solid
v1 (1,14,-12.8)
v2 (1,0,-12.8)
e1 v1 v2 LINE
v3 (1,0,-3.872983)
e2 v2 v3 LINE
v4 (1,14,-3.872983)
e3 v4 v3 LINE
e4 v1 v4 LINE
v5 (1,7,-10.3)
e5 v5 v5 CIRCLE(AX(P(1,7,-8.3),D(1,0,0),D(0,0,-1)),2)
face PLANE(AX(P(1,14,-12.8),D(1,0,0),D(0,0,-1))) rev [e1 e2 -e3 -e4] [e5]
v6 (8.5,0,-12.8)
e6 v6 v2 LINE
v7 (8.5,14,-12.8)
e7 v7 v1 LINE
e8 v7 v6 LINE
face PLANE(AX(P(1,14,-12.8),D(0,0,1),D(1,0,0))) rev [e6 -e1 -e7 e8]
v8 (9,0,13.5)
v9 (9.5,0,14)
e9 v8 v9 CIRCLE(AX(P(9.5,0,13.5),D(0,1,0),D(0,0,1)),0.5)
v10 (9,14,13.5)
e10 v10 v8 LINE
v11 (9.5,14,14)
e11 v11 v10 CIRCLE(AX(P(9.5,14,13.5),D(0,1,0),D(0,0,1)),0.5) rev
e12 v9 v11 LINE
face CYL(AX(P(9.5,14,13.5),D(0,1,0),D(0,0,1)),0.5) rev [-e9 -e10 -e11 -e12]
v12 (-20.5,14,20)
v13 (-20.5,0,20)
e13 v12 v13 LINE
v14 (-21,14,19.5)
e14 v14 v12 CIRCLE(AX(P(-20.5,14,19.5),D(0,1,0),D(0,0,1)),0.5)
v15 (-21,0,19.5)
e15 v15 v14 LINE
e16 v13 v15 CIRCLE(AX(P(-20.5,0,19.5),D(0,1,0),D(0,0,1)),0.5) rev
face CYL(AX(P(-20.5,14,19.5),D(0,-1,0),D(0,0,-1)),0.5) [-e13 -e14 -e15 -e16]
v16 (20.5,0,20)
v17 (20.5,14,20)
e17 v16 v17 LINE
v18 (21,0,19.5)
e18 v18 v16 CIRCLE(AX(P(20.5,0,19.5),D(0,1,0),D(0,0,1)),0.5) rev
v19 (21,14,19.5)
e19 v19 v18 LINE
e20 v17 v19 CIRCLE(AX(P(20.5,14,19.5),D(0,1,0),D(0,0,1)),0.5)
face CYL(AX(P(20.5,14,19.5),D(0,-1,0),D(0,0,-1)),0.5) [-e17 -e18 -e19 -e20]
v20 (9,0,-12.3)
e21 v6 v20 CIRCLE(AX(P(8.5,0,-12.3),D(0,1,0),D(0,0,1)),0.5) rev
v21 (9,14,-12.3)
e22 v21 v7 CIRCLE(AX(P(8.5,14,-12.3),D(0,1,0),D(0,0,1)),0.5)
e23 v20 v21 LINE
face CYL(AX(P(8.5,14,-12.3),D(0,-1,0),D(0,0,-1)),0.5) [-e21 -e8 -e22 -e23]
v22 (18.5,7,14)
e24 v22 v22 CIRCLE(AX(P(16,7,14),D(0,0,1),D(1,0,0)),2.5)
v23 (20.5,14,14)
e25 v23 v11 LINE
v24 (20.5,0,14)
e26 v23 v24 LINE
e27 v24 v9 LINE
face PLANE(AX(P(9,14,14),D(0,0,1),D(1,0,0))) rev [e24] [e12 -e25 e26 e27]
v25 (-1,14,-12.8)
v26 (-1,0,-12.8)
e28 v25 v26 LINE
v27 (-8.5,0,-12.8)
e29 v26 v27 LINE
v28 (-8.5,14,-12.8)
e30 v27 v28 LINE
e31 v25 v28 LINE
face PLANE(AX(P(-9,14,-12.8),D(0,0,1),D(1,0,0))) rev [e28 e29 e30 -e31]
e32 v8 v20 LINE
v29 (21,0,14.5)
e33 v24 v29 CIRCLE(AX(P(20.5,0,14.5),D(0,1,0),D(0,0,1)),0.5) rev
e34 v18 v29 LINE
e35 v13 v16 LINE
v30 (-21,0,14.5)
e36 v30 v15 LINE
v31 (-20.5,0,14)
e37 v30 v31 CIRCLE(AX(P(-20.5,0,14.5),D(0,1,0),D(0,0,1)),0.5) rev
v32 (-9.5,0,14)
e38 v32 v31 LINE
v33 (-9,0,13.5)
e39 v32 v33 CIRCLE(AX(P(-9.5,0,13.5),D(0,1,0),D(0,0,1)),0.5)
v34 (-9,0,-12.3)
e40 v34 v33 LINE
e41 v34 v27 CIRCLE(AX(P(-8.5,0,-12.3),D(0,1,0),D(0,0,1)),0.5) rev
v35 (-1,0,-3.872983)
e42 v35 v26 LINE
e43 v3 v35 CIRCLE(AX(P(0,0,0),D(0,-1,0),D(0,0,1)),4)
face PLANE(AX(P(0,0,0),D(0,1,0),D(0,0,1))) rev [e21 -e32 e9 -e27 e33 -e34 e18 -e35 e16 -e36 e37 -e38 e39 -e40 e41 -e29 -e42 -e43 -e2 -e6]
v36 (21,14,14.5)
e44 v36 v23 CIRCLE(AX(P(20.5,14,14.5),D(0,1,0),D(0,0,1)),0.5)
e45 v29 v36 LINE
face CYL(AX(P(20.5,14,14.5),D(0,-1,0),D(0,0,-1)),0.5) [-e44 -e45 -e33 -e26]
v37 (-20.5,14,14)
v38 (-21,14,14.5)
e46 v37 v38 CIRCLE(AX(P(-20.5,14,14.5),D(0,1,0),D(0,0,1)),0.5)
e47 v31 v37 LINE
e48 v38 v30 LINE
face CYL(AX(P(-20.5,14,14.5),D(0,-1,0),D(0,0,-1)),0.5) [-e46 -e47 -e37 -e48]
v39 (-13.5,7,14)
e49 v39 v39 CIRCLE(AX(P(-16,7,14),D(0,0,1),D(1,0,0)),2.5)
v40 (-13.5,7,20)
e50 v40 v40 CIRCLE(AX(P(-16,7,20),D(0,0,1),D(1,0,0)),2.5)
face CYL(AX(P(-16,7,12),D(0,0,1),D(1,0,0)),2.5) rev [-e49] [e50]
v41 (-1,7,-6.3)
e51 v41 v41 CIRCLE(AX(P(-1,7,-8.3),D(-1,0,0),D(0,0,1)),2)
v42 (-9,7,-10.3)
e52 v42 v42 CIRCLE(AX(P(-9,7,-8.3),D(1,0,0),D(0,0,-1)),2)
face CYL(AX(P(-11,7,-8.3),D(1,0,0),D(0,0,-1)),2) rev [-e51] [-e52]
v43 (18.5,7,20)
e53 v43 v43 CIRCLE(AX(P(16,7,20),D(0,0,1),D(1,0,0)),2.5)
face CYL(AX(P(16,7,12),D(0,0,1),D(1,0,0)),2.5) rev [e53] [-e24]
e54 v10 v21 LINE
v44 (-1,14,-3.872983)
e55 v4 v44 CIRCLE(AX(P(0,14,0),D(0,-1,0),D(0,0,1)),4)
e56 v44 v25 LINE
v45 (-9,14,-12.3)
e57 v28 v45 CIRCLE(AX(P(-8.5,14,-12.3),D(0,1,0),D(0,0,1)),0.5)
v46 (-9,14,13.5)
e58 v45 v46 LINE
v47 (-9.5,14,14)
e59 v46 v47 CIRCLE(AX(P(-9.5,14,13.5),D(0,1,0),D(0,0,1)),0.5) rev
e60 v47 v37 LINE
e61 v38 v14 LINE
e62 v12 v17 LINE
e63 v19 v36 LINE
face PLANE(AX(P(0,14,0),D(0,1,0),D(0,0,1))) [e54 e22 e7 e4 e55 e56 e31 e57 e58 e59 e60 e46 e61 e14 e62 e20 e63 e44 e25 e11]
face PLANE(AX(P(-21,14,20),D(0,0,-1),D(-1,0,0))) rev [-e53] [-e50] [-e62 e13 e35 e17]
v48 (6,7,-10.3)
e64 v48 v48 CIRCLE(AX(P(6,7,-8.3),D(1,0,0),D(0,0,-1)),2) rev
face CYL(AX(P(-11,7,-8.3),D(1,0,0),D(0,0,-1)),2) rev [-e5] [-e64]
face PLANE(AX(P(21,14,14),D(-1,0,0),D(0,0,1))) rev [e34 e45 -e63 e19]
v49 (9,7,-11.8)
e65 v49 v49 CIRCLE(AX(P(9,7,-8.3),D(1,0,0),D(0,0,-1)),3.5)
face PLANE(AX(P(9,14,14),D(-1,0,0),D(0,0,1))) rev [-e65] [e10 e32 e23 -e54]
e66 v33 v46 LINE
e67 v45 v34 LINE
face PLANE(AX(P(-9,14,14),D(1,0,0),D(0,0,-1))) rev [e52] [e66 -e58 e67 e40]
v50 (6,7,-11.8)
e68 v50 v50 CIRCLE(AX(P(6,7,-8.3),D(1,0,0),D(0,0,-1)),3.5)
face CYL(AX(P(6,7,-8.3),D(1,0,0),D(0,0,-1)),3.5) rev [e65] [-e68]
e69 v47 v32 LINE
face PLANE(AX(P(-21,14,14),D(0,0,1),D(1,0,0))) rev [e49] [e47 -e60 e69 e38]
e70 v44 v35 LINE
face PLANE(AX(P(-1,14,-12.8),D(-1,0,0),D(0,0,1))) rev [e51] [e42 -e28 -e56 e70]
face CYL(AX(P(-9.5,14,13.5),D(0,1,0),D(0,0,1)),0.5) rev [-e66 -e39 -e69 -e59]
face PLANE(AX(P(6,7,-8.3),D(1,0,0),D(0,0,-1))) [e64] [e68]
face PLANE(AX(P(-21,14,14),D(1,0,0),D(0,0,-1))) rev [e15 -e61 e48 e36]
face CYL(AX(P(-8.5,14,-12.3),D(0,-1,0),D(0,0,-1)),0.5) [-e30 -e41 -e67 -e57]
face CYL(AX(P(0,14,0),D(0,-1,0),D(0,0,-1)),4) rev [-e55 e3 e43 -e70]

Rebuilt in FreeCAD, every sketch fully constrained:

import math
import FreeCAD as App
import Part
import Sketcher

V = App.Vector
Q = App.Units.Quantity


def edges_at(feature, points):
    """Names of the edges that pass closest to the given points."""
    edges = feature.Shape.Edges
    near = lambda p: min(range(len(edges)), key=lambda i: edges[i].distToShape(Part.Vertex(*p))[0])
    return sorted({f"Edge{near(p) + 1}" for p in points})

doc = App.newDocument("Part")
body = doc.addObject("PartDesign::Body", "Body")

# Sketch on XZ plane
sketch1 = body.newObject("Sketcher::SketchObject", "Sketch")
sketch1.AttachmentSupport = (doc.getObject("XZ_Plane"), [""])
sketch1.MapMode = "FlatFace"
sketch1.addGeometry([
    Part.LineSegment(V(21, 14, 0), V(9, 14, 0)),  # 0
    Part.LineSegment(V(9, 14, 0), V(9, -12.8, 0)),  # 1
    Part.LineSegment(V(9, -12.8, 0), V(1, -12.8, 0)),  # 2
    Part.LineSegment(V(1, -12.8, 0), V(1, -3.9, 0)),  # 3
    Part.ArcOfCircle(Part.Circle(V(0, 0, 0), V(0, 0, 1), 4), math.radians(-76), math.radians(256)),  # 4
    Part.LineSegment(V(-1, -3.9, 0), V(-1, -12.8, 0)),  # 5
    Part.LineSegment(V(-1, -12.8, 0), V(-9, -12.8, 0)),  # 6
    Part.LineSegment(V(-9, -12.8, 0), V(-9, 14, 0)),  # 7
    Part.LineSegment(V(-9, 14, 0), V(-21, 14, 0)),  # 8
    Part.LineSegment(V(-21, 14, 0), V(-21, 20, 0)),  # 9
    Part.LineSegment(V(-21, 20, 0), V(21, 20, 0)),  # 10
    Part.LineSegment(V(21, 20, 0), V(21, 14, 0)),  # 11
], False)
sketch1.addConstraint([
    Sketcher.Constraint("Coincident", 0, 2, 1, 1),
    Sketcher.Constraint("Coincident", 1, 2, 2, 1),
    Sketcher.Constraint("Coincident", 2, 2, 3, 1),
    Sketcher.Constraint("Coincident", 3, 2, 4, 1),
    Sketcher.Constraint("Coincident", 4, 2, 5, 1),
    Sketcher.Constraint("Coincident", 5, 2, 6, 1),
    Sketcher.Constraint("Coincident", 6, 2, 7, 1),
    Sketcher.Constraint("Coincident", 7, 2, 8, 1),
    Sketcher.Constraint("Coincident", 8, 2, 9, 1),
    Sketcher.Constraint("Coincident", 9, 2, 10, 1),
    Sketcher.Constraint("Coincident", 10, 2, 11, 1),
    Sketcher.Constraint("Coincident", 11, 2, 0, 1),
    Sketcher.Constraint("Horizontal", 0),
    Sketcher.Constraint("Vertical", 1),
    Sketcher.Constraint("Horizontal", 2),
    Sketcher.Constraint("Vertical", 3),
    Sketcher.Constraint("Vertical", 5),
    Sketcher.Constraint("Horizontal", 6),
    Sketcher.Constraint("Vertical", 7),
    Sketcher.Constraint("Horizontal", 8),
    Sketcher.Constraint("Vertical", 9),
    Sketcher.Constraint("Horizontal", 10),
    Sketcher.Constraint("Vertical", 11),
    Sketcher.Constraint("Coincident", 4, 3, -1, 1),
    Sketcher.Constraint("Symmetric", 2, 2, 5, 2, -2),
    Sketcher.Constraint("Symmetric", 0, 2, 7, 2, -2),
    Sketcher.Constraint("Equal", 0, 8),
    Sketcher.Constraint("Radius", 4, Q("4 mm")),
    Sketcher.Constraint("DistanceX", 0, 2, 0, 1, Q("12 mm")),
    Sketcher.Constraint("DistanceX", 2, 2, 2, 1, Q("8 mm")),
    Sketcher.Constraint("DistanceX", 10, 1, 10, 2, Q("42 mm")),
    Sketcher.Constraint("DistanceY", 9, 1, 9, 2, Q("6 mm")),
    Sketcher.Constraint("DistanceY", 1, 2, 1, 1, Q("26.8 mm")),
    Sketcher.Constraint("DistanceY", -1, 1, 0, 2, Q("14 mm")),
])
pad1 = body.newObject("PartDesign::Pad", "Pad")
pad1.Profile = sketch1
pad1.Length = 14
pad1.Reversed = True

# Sketch on YZ plane
sketch2 = body.newObject("Sketcher::SketchObject", "Sketch001")
sketch2.AttachmentSupport = (doc.getObject("YZ_Plane"), [""])
sketch2.MapMode = "FlatFace"
sketch2.AttachmentOffset = App.Placement(V(0, 0, 9), App.Rotation())
sketch2.addGeometry(Part.Circle(V(7, -8.3, 0), V(0, 0, 1), 2), False)
sketch2.addConstraint([
    Sketcher.Constraint("Diameter", 0, Q("4 mm")),
    Sketcher.Constraint("DistanceX", -1, 1, 0, 3, Q("7 mm")),
    Sketcher.Constraint("DistanceY", 0, 3, -1, 1, Q("8.3 mm")),
])
pocket1 = body.newObject("PartDesign::Pocket", "Pocket")
pocket1.Profile = sketch2
pocket1.Length = 20

# Sketch on YZ plane
sketch3 = body.newObject("Sketcher::SketchObject", "Sketch002")
sketch3.AttachmentSupport = (doc.getObject("YZ_Plane"), [""])
sketch3.MapMode = "FlatFace"
sketch3.AttachmentOffset = App.Placement(V(0, 0, 9), App.Rotation())
sketch3.addGeometry(Part.Circle(V(7, -8.3, 0), V(0, 0, 1), 3.5), False)
sketch3.addConstraint([
    Sketcher.Constraint("Diameter", 0, Q("7 mm")),
    Sketcher.Constraint("DistanceX", -1, 1, 0, 3, Q("7 mm")),
    Sketcher.Constraint("DistanceY", 0, 3, -1, 1, Q("8.3 mm")),
])
pocket2 = body.newObject("PartDesign::Pocket", "Pocket001")
pocket2.Profile = sketch3
pocket2.Length = 3

# Sketch on XY plane
sketch4 = body.newObject("Sketcher::SketchObject", "Sketch003")
sketch4.AttachmentSupport = (doc.getObject("XY_Plane"), [""])
sketch4.MapMode = "FlatFace"
sketch4.AttachmentOffset = App.Placement(V(0, 0, 20), App.Rotation())
sketch4.addGeometry([
    Part.Circle(V(-16, 7, 0), V(0, 0, 1), 2.5),
    Part.Circle(V(16, 7, 0), V(0, 0, 1), 2.5),
], False)
sketch4.addConstraint([
    Sketcher.Constraint("Equal", 0, 1),
    Sketcher.Constraint("Symmetric", 0, 3, 1, 3, -2),
    Sketcher.Constraint("Diameter", 0, Q("5 mm")),
    Sketcher.Constraint("DistanceX", 0, 3, -1, 1, Q("16 mm")),
    Sketcher.Constraint("DistanceY", -1, 1, 0, 3, Q("7 mm")),
])
pocket3 = body.newObject("PartDesign::Pocket", "Pocket002")
pocket3.Profile = sketch4
pocket3.Length = 8
doc.recompute()

fillet = body.newObject("PartDesign::Fillet", "Fillet")
fillet.Base = (pocket3, edges_at(pocket3, [
    (-21, 7, 14),
    (-9, 7, 14),
    (-9, 7, -12.8),
    (9, 7, -12.8),
    (9, 7, 14),
    (21, 7, 14),
    (21, 7, 20),
    (-21, 7, 20),
]))
fillet.Radius = 0.5

doc.recompute()
